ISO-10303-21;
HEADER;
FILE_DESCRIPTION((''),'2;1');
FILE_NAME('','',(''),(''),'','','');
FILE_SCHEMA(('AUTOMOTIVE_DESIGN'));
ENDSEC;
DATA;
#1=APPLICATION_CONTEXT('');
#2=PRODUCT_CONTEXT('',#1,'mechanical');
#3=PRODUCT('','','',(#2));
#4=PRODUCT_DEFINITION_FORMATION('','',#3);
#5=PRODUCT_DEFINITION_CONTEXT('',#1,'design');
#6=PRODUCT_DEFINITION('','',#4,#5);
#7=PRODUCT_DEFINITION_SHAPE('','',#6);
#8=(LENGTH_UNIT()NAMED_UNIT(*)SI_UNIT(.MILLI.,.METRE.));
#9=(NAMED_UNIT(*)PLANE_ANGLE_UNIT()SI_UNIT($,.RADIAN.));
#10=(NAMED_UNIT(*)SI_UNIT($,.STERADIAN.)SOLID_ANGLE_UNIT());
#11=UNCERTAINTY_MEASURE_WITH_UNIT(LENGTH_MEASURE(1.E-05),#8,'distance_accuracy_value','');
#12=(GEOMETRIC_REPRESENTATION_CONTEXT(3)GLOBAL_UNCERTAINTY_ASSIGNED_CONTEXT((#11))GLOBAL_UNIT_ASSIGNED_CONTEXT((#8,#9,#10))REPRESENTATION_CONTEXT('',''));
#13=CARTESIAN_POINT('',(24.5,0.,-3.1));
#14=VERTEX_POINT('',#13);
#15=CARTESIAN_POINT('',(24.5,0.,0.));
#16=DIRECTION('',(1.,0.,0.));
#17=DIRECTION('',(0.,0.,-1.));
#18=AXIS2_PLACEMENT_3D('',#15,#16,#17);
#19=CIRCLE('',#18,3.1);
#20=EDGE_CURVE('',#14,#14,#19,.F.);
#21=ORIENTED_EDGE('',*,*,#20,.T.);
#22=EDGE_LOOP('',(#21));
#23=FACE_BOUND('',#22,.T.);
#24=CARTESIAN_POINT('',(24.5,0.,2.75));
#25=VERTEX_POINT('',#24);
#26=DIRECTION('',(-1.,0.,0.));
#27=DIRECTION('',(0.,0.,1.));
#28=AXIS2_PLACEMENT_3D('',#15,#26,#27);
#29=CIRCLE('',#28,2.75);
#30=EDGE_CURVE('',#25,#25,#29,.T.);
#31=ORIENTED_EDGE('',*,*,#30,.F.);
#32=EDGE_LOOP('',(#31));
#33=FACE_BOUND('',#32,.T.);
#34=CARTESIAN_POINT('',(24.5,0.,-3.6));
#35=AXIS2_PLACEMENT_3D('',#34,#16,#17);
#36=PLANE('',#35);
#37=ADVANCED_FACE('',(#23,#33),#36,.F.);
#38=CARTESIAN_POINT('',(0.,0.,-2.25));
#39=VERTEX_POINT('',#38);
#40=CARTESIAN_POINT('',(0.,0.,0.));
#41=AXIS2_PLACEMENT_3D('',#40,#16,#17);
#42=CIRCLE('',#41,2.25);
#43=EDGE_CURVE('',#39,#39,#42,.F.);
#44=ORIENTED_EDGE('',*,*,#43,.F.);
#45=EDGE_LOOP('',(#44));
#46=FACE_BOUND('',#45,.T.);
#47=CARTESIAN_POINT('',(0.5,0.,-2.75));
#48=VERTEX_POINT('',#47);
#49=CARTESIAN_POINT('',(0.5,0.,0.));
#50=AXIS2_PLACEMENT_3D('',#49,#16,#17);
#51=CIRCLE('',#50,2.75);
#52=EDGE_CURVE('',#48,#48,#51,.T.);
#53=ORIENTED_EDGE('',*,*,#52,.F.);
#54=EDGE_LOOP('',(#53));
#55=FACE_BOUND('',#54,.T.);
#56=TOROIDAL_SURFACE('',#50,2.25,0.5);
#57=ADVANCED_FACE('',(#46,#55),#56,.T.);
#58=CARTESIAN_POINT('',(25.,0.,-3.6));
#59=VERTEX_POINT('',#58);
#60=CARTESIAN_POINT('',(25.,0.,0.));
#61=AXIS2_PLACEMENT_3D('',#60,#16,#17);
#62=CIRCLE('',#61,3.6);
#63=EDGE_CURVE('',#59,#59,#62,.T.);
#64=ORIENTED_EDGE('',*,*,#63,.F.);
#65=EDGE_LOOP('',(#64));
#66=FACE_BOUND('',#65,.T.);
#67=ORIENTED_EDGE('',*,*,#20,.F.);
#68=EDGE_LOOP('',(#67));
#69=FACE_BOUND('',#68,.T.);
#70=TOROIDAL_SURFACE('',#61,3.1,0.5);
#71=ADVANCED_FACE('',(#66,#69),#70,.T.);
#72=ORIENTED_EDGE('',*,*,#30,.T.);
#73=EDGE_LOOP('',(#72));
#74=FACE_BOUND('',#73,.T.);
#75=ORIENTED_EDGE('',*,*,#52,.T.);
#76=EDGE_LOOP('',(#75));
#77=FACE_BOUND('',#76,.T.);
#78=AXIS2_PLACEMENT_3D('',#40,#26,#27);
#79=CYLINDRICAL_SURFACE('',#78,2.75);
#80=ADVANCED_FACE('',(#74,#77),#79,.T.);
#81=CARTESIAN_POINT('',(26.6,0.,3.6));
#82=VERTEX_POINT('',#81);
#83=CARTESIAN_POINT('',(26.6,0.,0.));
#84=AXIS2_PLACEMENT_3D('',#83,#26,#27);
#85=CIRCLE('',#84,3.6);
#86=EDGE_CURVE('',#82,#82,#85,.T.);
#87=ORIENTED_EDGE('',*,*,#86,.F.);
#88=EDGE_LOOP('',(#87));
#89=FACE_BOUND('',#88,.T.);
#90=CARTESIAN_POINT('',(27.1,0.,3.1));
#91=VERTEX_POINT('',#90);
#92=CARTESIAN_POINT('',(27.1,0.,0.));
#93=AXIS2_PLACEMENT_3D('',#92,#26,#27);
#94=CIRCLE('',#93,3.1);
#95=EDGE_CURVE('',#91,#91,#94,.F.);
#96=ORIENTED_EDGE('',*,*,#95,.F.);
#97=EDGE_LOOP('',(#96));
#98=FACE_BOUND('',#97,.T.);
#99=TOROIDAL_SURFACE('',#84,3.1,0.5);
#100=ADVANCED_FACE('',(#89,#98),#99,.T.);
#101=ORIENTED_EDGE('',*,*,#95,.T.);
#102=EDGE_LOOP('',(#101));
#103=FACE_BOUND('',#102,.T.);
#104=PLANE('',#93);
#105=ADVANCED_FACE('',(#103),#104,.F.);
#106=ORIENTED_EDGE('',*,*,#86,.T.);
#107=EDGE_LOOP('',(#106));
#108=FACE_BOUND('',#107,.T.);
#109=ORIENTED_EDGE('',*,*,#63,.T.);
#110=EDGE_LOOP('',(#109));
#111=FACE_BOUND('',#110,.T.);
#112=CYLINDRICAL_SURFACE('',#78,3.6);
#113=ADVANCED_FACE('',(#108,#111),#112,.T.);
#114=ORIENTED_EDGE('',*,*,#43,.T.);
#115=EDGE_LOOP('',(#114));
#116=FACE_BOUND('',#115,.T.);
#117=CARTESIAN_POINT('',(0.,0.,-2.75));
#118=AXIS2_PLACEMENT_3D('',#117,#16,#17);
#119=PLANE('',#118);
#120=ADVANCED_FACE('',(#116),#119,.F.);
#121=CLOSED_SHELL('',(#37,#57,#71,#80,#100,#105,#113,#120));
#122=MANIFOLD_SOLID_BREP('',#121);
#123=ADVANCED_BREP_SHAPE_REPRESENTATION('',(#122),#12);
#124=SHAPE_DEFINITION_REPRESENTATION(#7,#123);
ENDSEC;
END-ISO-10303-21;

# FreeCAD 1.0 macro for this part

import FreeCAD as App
import Part
import Sketcher

V = App.Vector


def edges_at(feature, points):
    """Names of the edges that pass closest to the given points."""
    edges = feature.Shape.Edges
    near = lambda p: min(range(len(edges)), key=lambda i: edges[i].distToShape(Part.Vertex(*p))[0])
    return sorted({f"Edge{near(p) + 1}" for p in points})

doc = App.newDocument("Part")
body = doc.addObject("PartDesign::Body", "Body")

sketch1 = body.newObject("Sketcher::SketchObject", "Sketch")
sketch1.AttachmentSupport = (doc.getObject("XZ_Plane"), [""])
sketch1.MapMode = "FlatFace"
sketch1.addGeometry([
    Part.LineSegment(V(0, 0, 0), V(27.1, 0, 0)),
    Part.LineSegment(V(27.1, 0, 0), V(27.1, -3.6, 0)),
    Part.LineSegment(V(27.1, -3.6, 0), V(24.5, -3.6, 0)),
    Part.LineSegment(V(24.5, -3.6, 0), V(24.5, -2.8, 0)),
    Part.LineSegment(V(24.5, -2.8, 0), V(0, -2.8, 0)),
    Part.LineSegment(V(0, -2.8, 0), V(0, 0, 0)),
], False)
sketch1.addConstraint([
    Sketcher.Constraint("Coincident", 0, 2, 1, 1),
    Sketcher.Constraint("Coincident", 1, 2, 2, 1),
    Sketcher.Constraint("Coincident", 2, 2, 3, 1),
    Sketcher.Constraint("Coincident", 3, 2, 4, 1),
    Sketcher.Constraint("Coincident", 4, 2, 5, 1),
    Sketcher.Constraint("Coincident", 5, 2, 0, 1),
    Sketcher.Constraint("Horizontal", 0),
    Sketcher.Constraint("Vertical", 1),
    Sketcher.Constraint("Horizontal", 2),
    Sketcher.Constraint("Vertical", 3),
    Sketcher.Constraint("Horizontal", 4),
    Sketcher.Constraint("Vertical", 5),
    Sketcher.Constraint("Coincident", 5, 2, -1, 1),
    Sketcher.Constraint("DistanceX", 0, 1, 0, 2, 27.1),
    Sketcher.Constraint("DistanceX", 2, 2, 2, 1, 2.6),
    Sketcher.Constraint("DistanceY", 1, 2, 1, 1, 3.6),
    Sketcher.Constraint("DistanceY", 3, 1, 3, 2, 0.85),
])
revolution = body.newObject("PartDesign::Revolution", "Revolution")
revolution.Profile = sketch1
revolution.ReferenceAxis = (sketch1, ["H_Axis"])
revolution.Angle = 360
doc.recompute()

fillet = body.newObject("PartDesign::Fillet", "Fillet")
fillet.Base = (revolution, edges_at(revolution, [(27.1, 0, -3.6)]))
fillet.Radius = 0.5
doc.recompute()

fillet2 = body.newObject("PartDesign::Fillet", "Fillet001")
fillet2.Base = (fillet, edges_at(fillet, [(0, 0, -2.75)]))
fillet2.Radius = 0.5
doc.recompute()

fillet3 = body.newObject("PartDesign::Fillet", "Fillet002")
fillet3.Base = (fillet2, edges_at(fillet2, [(24.5, 0, -3.6)]))
fillet3.Radius = 0.5

doc.recompute()
